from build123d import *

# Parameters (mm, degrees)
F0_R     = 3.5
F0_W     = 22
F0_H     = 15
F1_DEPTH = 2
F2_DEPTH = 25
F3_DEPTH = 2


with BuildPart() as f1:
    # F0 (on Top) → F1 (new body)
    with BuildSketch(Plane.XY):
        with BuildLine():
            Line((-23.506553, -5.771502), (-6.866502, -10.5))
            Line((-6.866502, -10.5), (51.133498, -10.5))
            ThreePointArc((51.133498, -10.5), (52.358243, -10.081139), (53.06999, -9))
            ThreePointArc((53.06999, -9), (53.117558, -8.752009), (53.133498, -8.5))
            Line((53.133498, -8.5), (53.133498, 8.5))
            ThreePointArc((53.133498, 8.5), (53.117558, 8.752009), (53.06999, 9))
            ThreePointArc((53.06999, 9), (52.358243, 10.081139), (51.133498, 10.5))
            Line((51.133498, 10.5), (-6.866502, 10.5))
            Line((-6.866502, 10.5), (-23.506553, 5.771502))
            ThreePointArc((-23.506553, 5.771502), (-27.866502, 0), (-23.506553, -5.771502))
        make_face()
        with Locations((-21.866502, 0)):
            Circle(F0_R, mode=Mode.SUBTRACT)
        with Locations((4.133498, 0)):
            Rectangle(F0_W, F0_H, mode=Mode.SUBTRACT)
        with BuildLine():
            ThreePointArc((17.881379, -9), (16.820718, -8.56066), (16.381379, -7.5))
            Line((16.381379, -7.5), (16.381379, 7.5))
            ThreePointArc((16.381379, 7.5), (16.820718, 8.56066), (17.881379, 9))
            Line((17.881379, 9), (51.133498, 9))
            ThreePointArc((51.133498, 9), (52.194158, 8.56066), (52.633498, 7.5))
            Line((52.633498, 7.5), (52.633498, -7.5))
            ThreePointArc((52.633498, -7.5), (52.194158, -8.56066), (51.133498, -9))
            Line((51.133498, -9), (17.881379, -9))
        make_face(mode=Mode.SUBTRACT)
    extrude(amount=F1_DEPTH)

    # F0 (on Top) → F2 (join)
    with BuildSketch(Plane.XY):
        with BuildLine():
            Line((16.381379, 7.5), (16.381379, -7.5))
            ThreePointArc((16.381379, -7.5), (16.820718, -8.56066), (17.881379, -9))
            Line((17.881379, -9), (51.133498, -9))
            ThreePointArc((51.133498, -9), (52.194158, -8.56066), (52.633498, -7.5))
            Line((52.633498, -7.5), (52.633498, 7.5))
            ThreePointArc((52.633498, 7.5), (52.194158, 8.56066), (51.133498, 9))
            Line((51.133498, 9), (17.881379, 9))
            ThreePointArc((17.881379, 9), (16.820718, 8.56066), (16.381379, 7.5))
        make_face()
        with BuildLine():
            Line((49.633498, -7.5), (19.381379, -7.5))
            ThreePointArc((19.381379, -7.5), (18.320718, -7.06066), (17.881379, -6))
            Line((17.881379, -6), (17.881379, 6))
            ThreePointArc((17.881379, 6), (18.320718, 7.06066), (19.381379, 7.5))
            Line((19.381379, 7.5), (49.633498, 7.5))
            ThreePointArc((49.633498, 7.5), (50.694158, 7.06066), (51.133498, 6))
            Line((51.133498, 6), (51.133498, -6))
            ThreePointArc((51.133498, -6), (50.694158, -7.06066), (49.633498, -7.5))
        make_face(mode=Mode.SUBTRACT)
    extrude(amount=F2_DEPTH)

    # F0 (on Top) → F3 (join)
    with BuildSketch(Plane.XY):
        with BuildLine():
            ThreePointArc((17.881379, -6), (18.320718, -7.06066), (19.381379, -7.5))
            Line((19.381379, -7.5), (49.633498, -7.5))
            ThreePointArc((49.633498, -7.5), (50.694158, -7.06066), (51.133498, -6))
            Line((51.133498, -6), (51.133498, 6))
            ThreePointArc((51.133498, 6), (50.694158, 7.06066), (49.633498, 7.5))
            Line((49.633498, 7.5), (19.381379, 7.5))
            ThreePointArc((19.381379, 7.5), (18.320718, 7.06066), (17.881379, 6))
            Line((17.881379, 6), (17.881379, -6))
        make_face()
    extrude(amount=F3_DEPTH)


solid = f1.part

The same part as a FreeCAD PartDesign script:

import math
import FreeCAD as App
import Part
import Sketcher

V = App.Vector
Q = App.Units.Quantity


def add_polygon(sketch, points):
    """Adds a closed chain of lines whose ends are joined by coincident constraints."""
    first, n = sketch.GeometryCount, len(points)
    for a, b in zip(points, points[1:] + points[:1]):
        sketch.addGeometry(Part.LineSegment(App.Vector(*a, 0), App.Vector(*b, 0)), False)
    for i in range(n):
        sketch.addConstraint(Sketcher.Constraint("Coincident", first + i, 2, first + (i + 1) % n, 1))

doc = App.newDocument("Part")
body = doc.addObject("PartDesign::Body", "Body")

# Sketch on XY plane
sketch1 = body.newObject("Sketcher::SketchObject", "Sketch")
sketch1.AttachmentSupport = (doc.getObject("XY_Plane"), [""])
sketch1.MapMode = "FlatFace"
sketch1.addGeometry(Part.LineSegment(V(-23.5, -5.8, 0), V(-6.9, -10.5, 0)), False)  # 0
sketch1.addGeometry(Part.LineSegment(V(-6.9, -10.5, 0), V(51.1, -10.5, 0)), False)  # 1
sketch1.addGeometry(Part.ArcOfCircle(Part.Circle(V(51.1, -8.5, 0), V(0, 0, 1), 2), math.radians(-90), math.radians(-14)), False)  # 2
sketch1.addGeometry(Part.ArcOfCircle(Part.Circle(V(51.1, -8.5, 0), V(0, 0, 1), 2), math.radians(-14.48), math.radians(0)), False)  # 3
sketch1.addGeometry(Part.LineSegment(V(53.1, -8.5, 0), V(53.1, 8.5, 0)), False)  # 4
sketch1.addGeometry(Part.ArcOfCircle(Part.Circle(V(51.1, 8.5, 0), V(0, 0, 1), 2), math.radians(0), math.radians(14.48)), False)  # 5
sketch1.addGeometry(Part.ArcOfCircle(Part.Circle(V(51.1, 8.5, 0), V(0, 0, 1), 2), math.radians(14), math.radians(90)), False)  # 6
sketch1.addGeometry(Part.LineSegment(V(51.1, 10.5, 0), V(-6.9, 10.5, 0)), False)  # 7
sketch1.addGeometry(Part.LineSegment(V(-6.9, 10.5, 0), V(-23.5, 5.8, 0)), False)  # 8
sketch1.addGeometry(Part.ArcOfCircle(Part.Circle(V(-21.9, 0, 0), V(0, 0, 1), 6), math.radians(106), math.radians(254)), False)  # 9
sketch1.addGeometry(Part.Circle(V(-21.9, 0, 0), V(0, 0, 1), 3.5), False)  # 10
add_polygon(sketch1, [(15.1, -7.5), (-6.9, -7.5), (-6.9, 7.5), (15.1, 7.5)])  # lines 11-14
sketch1.addGeometry(Part.LineSegment(V(51.1, -9, 0), V(17.9, -9, 0)), False)  # 15
sketch1.addGeometry(Part.ArcOfCircle(Part.Circle(V(17.9, -7.5, 0), V(0, 0, 1), 1.5), math.radians(180), math.radians(270)), False)  # 16
sketch1.addGeometry(Part.LineSegment(V(16.4, -7.5, 0), V(16.4, 7.5, 0)), False)  # 17
sketch1.addGeometry(Part.ArcOfCircle(Part.Circle(V(17.9, 7.5, 0), V(0, 0, 1), 1.5), math.radians(90), math.radians(180)), False)  # 18
sketch1.addGeometry(Part.LineSegment(V(17.9, 9, 0), V(51.1, 9, 0)), False)  # 19
sketch1.addGeometry(Part.ArcOfCircle(Part.Circle(V(51.1, 7.5, 0), V(0, 0, 1), 1.5), math.radians(0), math.radians(90)), False)  # 20
sketch1.addGeometry(Part.LineSegment(V(52.6, 7.5, 0), V(52.6, -7.5, 0)), False)  # 21
sketch1.addGeometry(Part.ArcOfCircle(Part.Circle(V(51.1, -7.5, 0), V(0, 0, 1), 1.5), math.radians(-90), math.radians(0)), False)  # 22
sketch1.addConstraint(Sketcher.Constraint("Coincident", 0, 2, 1, 1))
sketch1.addConstraint(Sketcher.Constraint("Tangent", 1, 2, 2, 1))
sketch1.addConstraint(Sketcher.Constraint("Coincident", 2, 2, 3, 1))
sketch1.addConstraint(Sketcher.Constraint("Coincident", 3, 2, 4, 1))
sketch1.addConstraint(Sketcher.Constraint("Coincident", 4, 2, 5, 1))
sketch1.addConstraint(Sketcher.Constraint("Coincident", 5, 2, 6, 1))
sketch1.addConstraint(Sketcher.Constraint("Tangent", 6, 2, 7, 1))
sketch1.addConstraint(Sketcher.Constraint("Coincident", 7, 2, 8, 1))
sketch1.addConstraint(Sketcher.Constraint("Tangent", 8, 2, 9, 1))
sketch1.addConstraint(Sketcher.Constraint("Tangent", 9, 2, 0, 1))
sketch1.addConstraint(Sketcher.Constraint("Tangent", 15, 2, 16, 2))
sketch1.addConstraint(Sketcher.Constraint("Tangent", 16, 1, 17, 1))
sketch1.addConstraint(Sketcher.Constraint("Tangent", 17, 2, 18, 2))
sketch1.addConstraint(Sketcher.Constraint("Tangent", 18, 1, 19, 1))
sketch1.addConstraint(Sketcher.Constraint("Tangent", 19, 2, 20, 2))
sketch1.addConstraint(Sketcher.Constraint("Tangent", 20, 1, 21, 1))
sketch1.addConstraint(Sketcher.Constraint("Tangent", 21, 2, 22, 2))
sketch1.addConstraint(Sketcher.Constraint("Tangent", 22, 1, 15, 1))
sketch1.addConstraint(Sketcher.Constraint("Horizontal", 1))
sketch1.addConstraint(Sketcher.Constraint("Vertical", 4))
sketch1.addConstraint(Sketcher.Constraint("Horizontal", 7))
sketch1.addConstraint(Sketcher.Constraint("Horizontal", 11))
sketch1.addConstraint(Sketcher.Constraint("Vertical", 12))
sketch1.addConstraint(Sketcher.Constraint("Horizontal", 13))
sketch1.addConstraint(Sketcher.Constraint("Vertical", 14))
sketch1.addConstraint(Sketcher.Constraint("Horizontal", 15))
sketch1.addConstraint(Sketcher.Constraint("Vertical", 17))
sketch1.addConstraint(Sketcher.Constraint("Horizontal", 19))
sketch1.addConstraint(Sketcher.Constraint("Vertical", 21))
sketch1.addConstraint(Sketcher.Constraint("Coincident", 10, 3, 9, 3))
sketch1.addConstraint(Sketcher.Constraint("Equal", 3, 5))
sketch1.addConstraint(Sketcher.Constraint("Equal", 2, 6))
sketch1.addConstraint(Sketcher.Constraint("Equal", 16, 18))
sketch1.addConstraint(Sketcher.Constraint("Equal", 18, 20))
sketch1.addConstraint(Sketcher.Constraint("Equal", 20, 22))
sketch1.addConstraint(Sketcher.Constraint("Symmetric", 2, 3, 6, 3, -1))
sketch1.addConstraint(Sketcher.Constraint("Symmetric", 8, 2, 9, 2, -1))
sketch1.addConstraint(Sketcher.Constraint("Horizontal", 2, 3, 3, 2))
sketch1.addConstraint(Sketcher.Constraint("Horizontal", 6, 3, 4, 2))
sketch1.addConstraint(Sketcher.Constraint("Horizontal", 22, 3, 11, 2))
sketch1.addConstraint(Sketcher.Constraint("Horizontal", 20, 3, 12, 2))
sketch1.addConstraint(Sketcher.Constraint("Horizontal", 2, 2, 15, 2))
sketch1.addConstraint(Sketcher.Constraint("Horizontal", 5, 2, 18, 1))
sketch1.addConstraint(Sketcher.Constraint("Vertical", 6, 3, 20, 3))
sketch1.addConstraint(Sketcher.Constraint("Vertical", 2, 2, 5, 2))
sketch1.addConstraint(Sketcher.Constraint("Vertical", 7, 2, 11, 2))
sketch1.addConstraint(Sketcher.Constraint("Diameter", 10, Q("7 mm")))
sketch1.addConstraint(Sketcher.Constraint("Radius", 2, Q("2 mm")))
sketch1.addConstraint(Sketcher.Constraint("Radius", 9, Q("6 mm")))
sketch1.addConstraint(Sketcher.Constraint("Radius", 16, Q("1.499999 mm")))
sketch1.addConstraint(Sketcher.Constraint("DistanceX", 1, 1, 1, 2, Q("58 mm")))
sketch1.addConstraint(Sketcher.Constraint("DistanceX", 11, 2, 11, 1, Q("22 mm")))
sketch1.addConstraint(Sketcher.Constraint("DistanceY", 4, 1, 4, 2, Q("17 mm")))
sketch1.addConstraint(Sketcher.Constraint("DistanceY", 12, 1, 12, 2, Q("15 mm")))
sketch1.addConstraint(Sketcher.Constraint("DistanceX", 9, 3, 2, 3, Q("73 mm")))
sketch1.addConstraint(Sketcher.Constraint("DistanceX", 2, 3, 3, 2, Q("2 mm")))
sketch1.addConstraint(Sketcher.Constraint("Radius", 3, Q("1.999938 mm")))
sketch1.addConstraint(Sketcher.Constraint("DistanceX", 15, 2, 15, 1, Q("33.252119 mm")))
sketch1.addConstraint(Sketcher.Constraint("DistanceX", -1, 1, 2, 3, Q("51.133498 mm")))
pad1 = body.newObject("PartDesign::Pad", "Pad")
pad1.Profile = sketch1
pad1.Length = 2

# Sketch on XY plane
sketch2 = body.newObject("Sketcher::SketchObject", "Sketch001")
sketch2.AttachmentSupport = (doc.getObject("XY_Plane"), [""])
sketch2.MapMode = "FlatFace"
sketch2.addGeometry(Part.LineSegment(V(16.4, 7.5, 0), V(16.4, -7.5, 0)), False)
sketch2.addGeometry(Part.ArcOfCircle(Part.Circle(V(17.9, -7.5, 0), V(0, 0, 1), 1.5), math.radians(180), math.radians(270)), False)
sketch2.addGeometry(Part.LineSegment(V(17.9, -9, 0), V(51.1, -9, 0)), False)
sketch2.addGeometry(Part.ArcOfCircle(Part.Circle(V(51.1, -7.5, 0), V(0, 0, 1), 1.5), math.radians(-90), math.radians(0)), False)
sketch2.addGeometry(Part.LineSegment(V(52.6, -7.5, 0), V(52.6, 7.5, 0)), False)
sketch2.addGeometry(Part.ArcOfCircle(Part.Circle(V(51.1, 7.5, 0), V(0, 0, 1), 1.5), math.radians(0), math.radians(90)), False)
sketch2.addGeometry(Part.LineSegment(V(51.1, 9, 0), V(17.9, 9, 0)), False)
sketch2.addGeometry(Part.ArcOfCircle(Part.Circle(V(17.9, 7.5, 0), V(0, 0, 1), 1.5), math.radians(90), math.radians(180)), False)
sketch2.addGeometry(Part.ArcOfCircle(Part.Circle(V(49.6, -6, 0), V(0, 0, 1), 1.5), math.radians(-90), math.radians(0)), False)
sketch2.addGeometry(Part.LineSegment(V(49.6, -7.5, 0), V(19.4, -7.5, 0)), False)
sketch2.addGeometry(Part.ArcOfCircle(Part.Circle(V(19.4, -6, 0), V(0, 0, 1), 1.5), math.radians(180), math.radians(270)), False)
sketch2.addGeometry(Part.LineSegment(V(17.9, -6, 0), V(17.9, 6, 0)), False)
sketch2.addGeometry(Part.ArcOfCircle(Part.Circle(V(19.4, 6, 0), V(0, 0, 1), 1.5), math.radians(90), math.radians(180)), False)
sketch2.addGeometry(Part.LineSegment(V(19.4, 7.5, 0), V(49.6, 7.5, 0)), False)
sketch2.addGeometry(Part.ArcOfCircle(Part.Circle(V(49.6, 6, 0), V(0, 0, 1), 1.5), math.radians(0), math.radians(90)), False)
sketch2.addGeometry(Part.LineSegment(V(51.1, 6, 0), V(51.1, -6, 0)), False)
sketch2.addConstraint(Sketcher.Constraint("Tangent", 0, 2, 1, 1))
sketch2.addConstraint(Sketcher.Constraint("Tangent", 1, 2, 2, 1))
sketch2.addConstraint(Sketcher.Constraint("Tangent", 2, 2, 3, 1))
sketch2.addConstraint(Sketcher.Constraint("Tangent", 3, 2, 4, 1))
sketch2.addConstraint(Sketcher.Constraint("Tangent", 4, 2, 5, 1))
sketch2.addConstraint(Sketcher.Constraint("Tangent", 5, 2, 6, 1))
sketch2.addConstraint(Sketcher.Constraint("Tangent", 6, 2, 7, 1))
sketch2.addConstraint(Sketcher.Constraint("Tangent", 7, 2, 0, 1))
sketch2.addConstraint(Sketcher.Constraint("Tangent", 8, 1, 9, 1))
sketch2.addConstraint(Sketcher.Constraint("Tangent", 9, 2, 10, 2))
sketch2.addConstraint(Sketcher.Constraint("Tangent", 10, 1, 11, 1))
sketch2.addConstraint(Sketcher.Constraint("Tangent", 11, 2, 12, 2))
sketch2.addConstraint(Sketcher.Constraint("Tangent", 12, 1, 13, 1))
sketch2.addConstraint(Sketcher.Constraint("Tangent", 13, 2, 14, 2))
sketch2.addConstraint(Sketcher.Constraint("Tangent", 14, 1, 15, 1))
sketch2.addConstraint(Sketcher.Constraint("Tangent", 15, 2, 8, 2))
sketch2.addConstraint(Sketcher.Constraint("Vertical", 0))
sketch2.addConstraint(Sketcher.Constraint("Horizontal", 2))
sketch2.addConstraint(Sketcher.Constraint("Vertical", 4))
sketch2.addConstraint(Sketcher.Constraint("Horizontal", 6))
sketch2.addConstraint(Sketcher.Constraint("Horizontal", 9))
sketch2.addConstraint(Sketcher.Constraint("Vertical", 11))
sketch2.addConstraint(Sketcher.Constraint("Horizontal", 13))
sketch2.addConstraint(Sketcher.Constraint("Vertical", 15))
sketch2.addConstraint(Sketcher.Constraint("Equal", 1, 3))
sketch2.addConstraint(Sketcher.Constraint("Equal", 3, 5))
sketch2.addConstraint(Sketcher.Constraint("Equal", 5, 7))
sketch2.addConstraint(Sketcher.Constraint("Equal", 7, 8))
sketch2.addConstraint(Sketcher.Constraint("Equal", 8, 10))
sketch2.addConstraint(Sketcher.Constraint("Equal", 10, 12))
sketch2.addConstraint(Sketcher.Constraint("Equal", 12, 14))
sketch2.addConstraint(Sketcher.Constraint("Horizontal", 3, 2, 8, 1))
sketch2.addConstraint(Sketcher.Constraint("Horizontal", 7, 2, 12, 1))
sketch2.addConstraint(Sketcher.Constraint("Vertical", 6, 2, 10, 1))
sketch2.addConstraint(Sketcher.Constraint("Vertical", 5, 2, 14, 1))
sketch2.addConstraint(Sketcher.Constraint("Radius", 1, Q("1.499999 mm")))
sketch2.addConstraint(Sketcher.Constraint("DistanceY", 0, 2, 0, 1, Q("15 mm")))
sketch2.addConstraint(Sketcher.Constraint("DistanceY", 8, 3, -1, 1, Q("5.999999 mm")))
sketch2.addConstraint(Sketcher.Constraint("DistanceX", 2, 1, 2, 2, Q("33.252119 mm")))
sketch2.addConstraint(Sketcher.Constraint("DistanceX", -1, 1, 2, 2, Q("51.133498 mm")))
pad2 = body.newObject("PartDesign::Pad", "Pad001")
pad2.Profile = sketch2
pad2.Length = 25

# Sketch on XY plane
sketch3 = body.newObject("Sketcher::SketchObject", "Sketch002")
sketch3.AttachmentSupport = (doc.getObject("XY_Plane"), [""])
sketch3.MapMode = "FlatFace"
sketch3.addGeometry(Part.ArcOfCircle(Part.Circle(V(19.4, -6, 0), V(0, 0, 1), 1.5), math.radians(180), math.radians(270)), False)
sketch3.addGeometry(Part.LineSegment(V(19.4, -7.5, 0), V(49.6, -7.5, 0)), False)
sketch3.addGeometry(Part.ArcOfCircle(Part.Circle(V(49.6, -6, 0), V(0, 0, 1), 1.5), math.radians(-90), math.radians(0)), False)
sketch3.addGeometry(Part.LineSegment(V(51.1, -6, 0), V(51.1, 6, 0)), False)
sketch3.addGeometry(Part.ArcOfCircle(Part.Circle(V(49.6, 6, 0), V(0, 0, 1), 1.5), math.radians(0), math.radians(90)), False)
sketch3.addGeometry(Part.LineSegment(V(49.6, 7.5, 0), V(19.4, 7.5, 0)), False)
sketch3.addGeometry(Part.ArcOfCircle(Part.Circle(V(19.4, 6, 0), V(0, 0, 1), 1.5), math.radians(90), math.radians(180)), False)
sketch3.addGeometry(Part.LineSegment(V(17.9, 6, 0), V(17.9, -6, 0)), False)
sketch3.addConstraint(Sketcher.Constraint("Tangent", 0, 2, 1, 1))
sketch3.addConstraint(Sketcher.Constraint("Tangent", 1, 2, 2, 1))
sketch3.addConstraint(Sketcher.Constraint("Tangent", 2, 2, 3, 1))
sketch3.addConstraint(Sketcher.Constraint("Tangent", 3, 2, 4, 1))
sketch3.addConstraint(Sketcher.Constraint("Tangent", 4, 2, 5, 1))
sketch3.addConstraint(Sketcher.Constraint("Tangent", 5, 2, 6, 1))
sketch3.addConstraint(Sketcher.Constraint("Tangent", 6, 2, 7, 1))
sketch3.addConstraint(Sketcher.Constraint("Tangent", 7, 2, 0, 1))
sketch3.addConstraint(Sketcher.Constraint("Horizontal", 1))
sketch3.addConstraint(Sketcher.Constraint("Vertical", 3))
sketch3.addConstraint(Sketcher.Constraint("Horizontal", 5))
sketch3.addConstraint(Sketcher.Constraint("Vertical", 7))
sketch3.addConstraint(Sketcher.Constraint("Equal", 0, 2))
sketch3.addConstraint(Sketcher.Constraint("Equal", 2, 4))
sketch3.addConstraint(Sketcher.Constraint("Equal", 4, 6))
sketch3.addConstraint(Sketcher.Constraint("Radius", 0, Q("1.499999 mm")))
sketch3.addConstraint(Sketcher.Constraint("DistanceY", 3, 1, 3, 2, Q("12 mm")))
sketch3.addConstraint(Sketcher.Constraint("DistanceY", 0, 3, -1, 1, Q("6.000001 mm")))
sketch3.addConstraint(Sketcher.Constraint("DistanceX", 1, 1, 1, 2, Q("30.252119 mm")))
sketch3.addConstraint(Sketcher.Constraint("DistanceX", -1, 1, 1, 2, Q("49.633498 mm")))
pad3 = body.newObject("PartDesign::Pad", "Pad002")
pad3.Profile = sketch3
pad3.Length = 2

doc.recompute()
